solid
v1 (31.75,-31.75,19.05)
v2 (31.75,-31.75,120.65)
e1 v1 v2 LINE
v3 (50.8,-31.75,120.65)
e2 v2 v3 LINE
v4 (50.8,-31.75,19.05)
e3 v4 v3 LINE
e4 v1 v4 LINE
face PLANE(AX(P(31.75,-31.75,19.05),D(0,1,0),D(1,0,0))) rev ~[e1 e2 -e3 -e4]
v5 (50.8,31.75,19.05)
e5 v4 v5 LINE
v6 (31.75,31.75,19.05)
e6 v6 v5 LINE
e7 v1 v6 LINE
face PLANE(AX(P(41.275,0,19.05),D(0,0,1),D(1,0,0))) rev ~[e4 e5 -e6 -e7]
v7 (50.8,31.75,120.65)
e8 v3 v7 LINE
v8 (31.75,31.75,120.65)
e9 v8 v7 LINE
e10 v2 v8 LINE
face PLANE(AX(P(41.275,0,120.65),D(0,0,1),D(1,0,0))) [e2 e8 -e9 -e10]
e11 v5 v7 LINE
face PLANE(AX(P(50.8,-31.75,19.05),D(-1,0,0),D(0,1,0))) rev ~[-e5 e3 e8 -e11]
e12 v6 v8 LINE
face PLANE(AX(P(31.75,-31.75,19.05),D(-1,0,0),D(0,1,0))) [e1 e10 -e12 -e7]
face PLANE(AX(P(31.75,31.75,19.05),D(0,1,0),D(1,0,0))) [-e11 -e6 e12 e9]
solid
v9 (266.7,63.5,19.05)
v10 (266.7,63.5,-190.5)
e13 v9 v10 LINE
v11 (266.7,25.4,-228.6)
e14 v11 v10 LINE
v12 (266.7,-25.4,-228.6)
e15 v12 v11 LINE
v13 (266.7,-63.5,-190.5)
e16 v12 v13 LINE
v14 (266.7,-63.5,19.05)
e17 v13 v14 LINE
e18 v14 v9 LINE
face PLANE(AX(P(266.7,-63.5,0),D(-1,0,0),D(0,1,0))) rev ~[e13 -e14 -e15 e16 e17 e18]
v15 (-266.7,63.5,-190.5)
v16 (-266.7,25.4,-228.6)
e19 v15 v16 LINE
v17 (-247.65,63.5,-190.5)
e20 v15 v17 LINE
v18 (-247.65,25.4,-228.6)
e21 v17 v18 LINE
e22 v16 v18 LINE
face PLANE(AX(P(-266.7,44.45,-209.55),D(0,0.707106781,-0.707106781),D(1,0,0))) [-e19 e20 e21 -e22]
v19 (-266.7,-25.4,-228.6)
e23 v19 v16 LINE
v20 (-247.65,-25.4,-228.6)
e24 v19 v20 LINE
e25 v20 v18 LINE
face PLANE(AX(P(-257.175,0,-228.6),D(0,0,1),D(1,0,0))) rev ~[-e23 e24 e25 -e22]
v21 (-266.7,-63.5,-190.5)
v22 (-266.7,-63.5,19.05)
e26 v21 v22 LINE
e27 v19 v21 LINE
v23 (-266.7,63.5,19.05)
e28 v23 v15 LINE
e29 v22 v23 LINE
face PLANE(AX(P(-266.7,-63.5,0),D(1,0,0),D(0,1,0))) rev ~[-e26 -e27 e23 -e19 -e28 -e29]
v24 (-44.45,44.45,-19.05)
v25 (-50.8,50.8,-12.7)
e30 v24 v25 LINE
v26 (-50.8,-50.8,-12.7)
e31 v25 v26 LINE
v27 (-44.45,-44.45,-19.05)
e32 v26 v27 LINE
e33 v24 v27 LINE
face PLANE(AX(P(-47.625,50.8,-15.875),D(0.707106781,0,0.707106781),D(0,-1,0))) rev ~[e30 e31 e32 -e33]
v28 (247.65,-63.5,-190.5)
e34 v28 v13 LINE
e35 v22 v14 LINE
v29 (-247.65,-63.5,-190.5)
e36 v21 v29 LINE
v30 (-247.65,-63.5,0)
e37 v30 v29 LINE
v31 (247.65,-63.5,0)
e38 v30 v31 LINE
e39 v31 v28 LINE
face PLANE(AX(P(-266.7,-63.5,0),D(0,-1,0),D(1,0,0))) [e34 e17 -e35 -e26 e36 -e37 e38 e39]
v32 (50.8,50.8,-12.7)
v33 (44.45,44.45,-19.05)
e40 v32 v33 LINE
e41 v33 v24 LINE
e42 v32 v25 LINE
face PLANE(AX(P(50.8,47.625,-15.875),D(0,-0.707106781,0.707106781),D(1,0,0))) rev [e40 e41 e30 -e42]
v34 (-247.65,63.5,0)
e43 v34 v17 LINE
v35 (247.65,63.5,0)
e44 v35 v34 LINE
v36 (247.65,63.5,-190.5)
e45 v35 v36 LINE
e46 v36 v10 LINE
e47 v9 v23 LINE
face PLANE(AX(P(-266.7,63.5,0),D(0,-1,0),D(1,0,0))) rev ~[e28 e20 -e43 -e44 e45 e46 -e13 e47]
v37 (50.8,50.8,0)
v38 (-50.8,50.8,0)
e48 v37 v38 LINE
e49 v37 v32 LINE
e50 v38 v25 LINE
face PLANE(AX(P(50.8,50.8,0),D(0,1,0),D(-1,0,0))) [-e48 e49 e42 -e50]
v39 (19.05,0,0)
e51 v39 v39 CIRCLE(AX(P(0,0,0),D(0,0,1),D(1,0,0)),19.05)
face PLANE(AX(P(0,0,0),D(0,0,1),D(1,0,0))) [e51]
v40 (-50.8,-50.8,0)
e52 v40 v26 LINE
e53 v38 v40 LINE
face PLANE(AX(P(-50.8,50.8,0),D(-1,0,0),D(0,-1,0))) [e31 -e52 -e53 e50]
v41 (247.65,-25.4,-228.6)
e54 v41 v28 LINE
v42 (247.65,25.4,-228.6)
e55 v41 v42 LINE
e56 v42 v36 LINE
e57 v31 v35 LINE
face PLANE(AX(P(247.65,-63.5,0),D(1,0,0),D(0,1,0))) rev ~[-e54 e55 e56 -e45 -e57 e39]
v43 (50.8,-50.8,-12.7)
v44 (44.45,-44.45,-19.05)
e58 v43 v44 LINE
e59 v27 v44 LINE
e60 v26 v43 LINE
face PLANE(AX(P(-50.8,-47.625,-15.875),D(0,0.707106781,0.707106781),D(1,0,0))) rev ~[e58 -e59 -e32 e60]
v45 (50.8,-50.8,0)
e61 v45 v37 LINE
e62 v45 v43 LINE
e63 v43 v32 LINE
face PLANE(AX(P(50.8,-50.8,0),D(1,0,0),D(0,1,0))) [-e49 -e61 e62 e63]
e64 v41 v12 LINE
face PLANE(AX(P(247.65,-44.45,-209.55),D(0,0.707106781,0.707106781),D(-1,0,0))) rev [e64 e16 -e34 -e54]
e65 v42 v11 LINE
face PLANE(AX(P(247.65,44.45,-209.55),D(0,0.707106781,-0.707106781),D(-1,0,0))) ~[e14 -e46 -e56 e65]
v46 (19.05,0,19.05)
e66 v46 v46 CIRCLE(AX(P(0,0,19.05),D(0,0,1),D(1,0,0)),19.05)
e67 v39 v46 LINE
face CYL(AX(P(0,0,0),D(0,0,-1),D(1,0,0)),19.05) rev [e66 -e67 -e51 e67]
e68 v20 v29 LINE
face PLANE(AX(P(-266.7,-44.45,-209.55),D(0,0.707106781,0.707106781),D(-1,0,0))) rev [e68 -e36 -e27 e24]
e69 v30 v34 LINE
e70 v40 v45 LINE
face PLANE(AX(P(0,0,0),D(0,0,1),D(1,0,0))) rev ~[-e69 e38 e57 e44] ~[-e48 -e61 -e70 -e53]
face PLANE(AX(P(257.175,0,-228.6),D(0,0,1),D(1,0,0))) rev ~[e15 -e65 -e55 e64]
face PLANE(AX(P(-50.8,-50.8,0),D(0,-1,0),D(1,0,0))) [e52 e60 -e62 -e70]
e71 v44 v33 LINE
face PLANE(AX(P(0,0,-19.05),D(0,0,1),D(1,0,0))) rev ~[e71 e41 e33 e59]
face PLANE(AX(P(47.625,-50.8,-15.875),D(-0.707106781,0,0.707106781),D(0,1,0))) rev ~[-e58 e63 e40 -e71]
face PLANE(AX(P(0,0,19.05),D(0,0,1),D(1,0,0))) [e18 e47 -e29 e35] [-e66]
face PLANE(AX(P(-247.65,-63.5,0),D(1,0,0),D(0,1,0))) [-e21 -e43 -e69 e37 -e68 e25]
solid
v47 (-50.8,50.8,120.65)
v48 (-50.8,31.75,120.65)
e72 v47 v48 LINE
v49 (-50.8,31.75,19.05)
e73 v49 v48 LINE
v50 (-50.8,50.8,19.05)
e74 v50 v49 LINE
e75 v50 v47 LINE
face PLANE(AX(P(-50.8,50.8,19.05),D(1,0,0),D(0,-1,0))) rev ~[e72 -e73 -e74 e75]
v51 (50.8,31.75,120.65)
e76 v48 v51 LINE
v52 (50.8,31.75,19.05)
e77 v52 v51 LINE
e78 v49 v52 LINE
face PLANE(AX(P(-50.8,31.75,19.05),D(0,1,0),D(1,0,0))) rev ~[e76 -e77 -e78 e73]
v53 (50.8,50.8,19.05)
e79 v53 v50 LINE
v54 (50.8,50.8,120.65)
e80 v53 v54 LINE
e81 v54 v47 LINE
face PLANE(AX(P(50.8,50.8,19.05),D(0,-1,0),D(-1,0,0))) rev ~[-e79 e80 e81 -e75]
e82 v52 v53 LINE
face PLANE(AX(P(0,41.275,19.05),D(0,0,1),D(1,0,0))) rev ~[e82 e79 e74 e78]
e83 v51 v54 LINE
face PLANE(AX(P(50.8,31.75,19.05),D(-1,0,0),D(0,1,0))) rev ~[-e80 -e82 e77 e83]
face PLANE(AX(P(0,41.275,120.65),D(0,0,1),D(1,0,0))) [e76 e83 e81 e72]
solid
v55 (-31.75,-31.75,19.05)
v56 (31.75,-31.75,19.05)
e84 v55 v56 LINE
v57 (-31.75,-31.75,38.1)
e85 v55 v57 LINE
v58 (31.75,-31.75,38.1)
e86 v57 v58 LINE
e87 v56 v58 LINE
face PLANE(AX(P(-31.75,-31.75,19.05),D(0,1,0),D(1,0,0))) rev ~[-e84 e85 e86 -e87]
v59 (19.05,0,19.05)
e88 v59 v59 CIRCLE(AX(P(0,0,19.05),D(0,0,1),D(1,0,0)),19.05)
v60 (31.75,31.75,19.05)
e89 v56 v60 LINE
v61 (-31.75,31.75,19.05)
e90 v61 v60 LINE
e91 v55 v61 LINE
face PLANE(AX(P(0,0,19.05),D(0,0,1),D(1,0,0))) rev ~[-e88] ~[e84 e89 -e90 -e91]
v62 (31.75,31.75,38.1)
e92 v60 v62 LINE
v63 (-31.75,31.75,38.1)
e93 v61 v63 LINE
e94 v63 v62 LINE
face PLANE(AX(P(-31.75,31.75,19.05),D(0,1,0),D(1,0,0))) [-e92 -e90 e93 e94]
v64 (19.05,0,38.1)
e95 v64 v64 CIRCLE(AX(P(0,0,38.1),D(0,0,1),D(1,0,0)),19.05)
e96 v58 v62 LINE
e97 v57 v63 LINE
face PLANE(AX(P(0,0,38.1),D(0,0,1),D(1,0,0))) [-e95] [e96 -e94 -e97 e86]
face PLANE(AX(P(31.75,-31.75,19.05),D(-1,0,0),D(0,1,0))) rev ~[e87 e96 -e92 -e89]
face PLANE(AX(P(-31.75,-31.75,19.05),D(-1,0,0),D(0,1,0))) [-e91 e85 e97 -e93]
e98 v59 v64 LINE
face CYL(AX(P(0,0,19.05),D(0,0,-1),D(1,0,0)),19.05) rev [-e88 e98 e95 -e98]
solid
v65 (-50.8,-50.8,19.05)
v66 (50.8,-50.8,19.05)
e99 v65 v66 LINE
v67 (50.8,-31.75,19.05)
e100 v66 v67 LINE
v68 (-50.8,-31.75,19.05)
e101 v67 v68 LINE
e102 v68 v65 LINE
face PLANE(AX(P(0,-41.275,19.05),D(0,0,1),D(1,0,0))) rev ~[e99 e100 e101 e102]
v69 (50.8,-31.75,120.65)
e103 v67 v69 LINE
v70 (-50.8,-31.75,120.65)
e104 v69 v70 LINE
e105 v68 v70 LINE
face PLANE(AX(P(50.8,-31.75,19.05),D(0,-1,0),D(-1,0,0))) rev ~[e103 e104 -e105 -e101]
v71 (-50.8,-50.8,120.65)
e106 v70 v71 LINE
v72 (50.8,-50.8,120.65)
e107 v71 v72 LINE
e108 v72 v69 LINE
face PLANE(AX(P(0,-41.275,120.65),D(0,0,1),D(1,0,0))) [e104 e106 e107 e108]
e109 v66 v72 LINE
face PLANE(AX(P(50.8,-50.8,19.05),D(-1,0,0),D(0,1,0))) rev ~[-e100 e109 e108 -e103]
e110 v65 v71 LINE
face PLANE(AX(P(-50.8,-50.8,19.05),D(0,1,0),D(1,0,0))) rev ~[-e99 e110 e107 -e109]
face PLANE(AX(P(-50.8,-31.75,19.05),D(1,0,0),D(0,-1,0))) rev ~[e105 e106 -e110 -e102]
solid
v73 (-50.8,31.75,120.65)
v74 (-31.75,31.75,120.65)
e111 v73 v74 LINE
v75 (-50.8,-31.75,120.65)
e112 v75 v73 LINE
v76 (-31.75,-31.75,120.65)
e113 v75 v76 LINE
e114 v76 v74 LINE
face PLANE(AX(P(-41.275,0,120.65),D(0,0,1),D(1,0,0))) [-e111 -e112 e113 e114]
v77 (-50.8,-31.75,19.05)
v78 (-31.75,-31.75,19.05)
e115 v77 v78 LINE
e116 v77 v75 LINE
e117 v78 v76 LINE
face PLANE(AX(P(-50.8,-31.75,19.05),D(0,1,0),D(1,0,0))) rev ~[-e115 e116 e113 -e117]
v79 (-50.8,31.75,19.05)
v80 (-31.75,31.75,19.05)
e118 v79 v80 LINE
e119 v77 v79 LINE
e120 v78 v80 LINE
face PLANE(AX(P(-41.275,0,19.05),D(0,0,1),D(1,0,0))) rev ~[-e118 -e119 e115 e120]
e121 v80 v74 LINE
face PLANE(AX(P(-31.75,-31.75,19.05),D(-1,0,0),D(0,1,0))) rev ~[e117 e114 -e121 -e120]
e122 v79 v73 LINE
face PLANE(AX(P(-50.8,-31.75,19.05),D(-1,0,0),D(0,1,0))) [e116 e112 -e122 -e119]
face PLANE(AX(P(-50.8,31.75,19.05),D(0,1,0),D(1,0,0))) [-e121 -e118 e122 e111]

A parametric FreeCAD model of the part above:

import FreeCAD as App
import Part
import Sketcher
Q = App.Units.Quantity


def edges_at(feature, points):
    """Names of the edges that pass closest to the given points."""
    edges = feature.Shape.Edges
    near = lambda p: min(range(len(edges)), key=lambda i: edges[i].distToShape(Part.Vertex(*p))[0])
    return sorted({f"Edge{near(p) + 1}" for p in points})

doc = App.newDocument("Part")
params = doc.addObject("Spreadsheet::Sheet", "Params")
for row, (alias, value) in enumerate([
    ("sketch1_width", "21 in"),
    ("sketch1_height", "5 in"),
    ("pad1_length", "0.75 in"),
    ("sketch2_height", "5 in"),
    ("sketch2_width", "0.75 in"),
    ("pad2_length", "9 in"),
    ("chamfer_size", "1.5 in"),
    ("sketch3_diameter", "1.5 in"),
    ("pocket1_length", "0.75 in"),
    ("sketch4_width", "4 in"),
    ("pad3_length", "0.75 in"),
    ("chamfer2_size", "0.25 in"),
    ("sketch5_diameter", "1.5 in"),
    ("sketch5_width", "2.5 in"),
    ("pad4_length", "0.75 in"),
    ("sketch6_width", "4 in"),
    ("sketch6_height", "0.75 in"),
    ("pad5_length", "4 in"),
    ("sketch7_height", "2.5 in"),
    ("sketch7_width", "0.75 in"),
    ("pad6_length", "4 in"),
], start=1):
    params.set(f"A{row}", alias)
    params.set(f"B{row}", "=" + value)
    params.setAlias(f"B{row}", alias)

body = doc.addObject("PartDesign::Body", "Body")

sketch1 = body.newObject("Sketcher::SketchObject", "Sketch")
sketch1.AttachmentSupport = (doc.getObject("XY_Plane"), [""])
sketch1.MapMode = "FlatFace"
sketch1.addGeometry([
    Part.LineSegment(App.Vector(-266.7, 63.5, 0), App.Vector(-266.7, -63.5, 0)),
    Part.LineSegment(App.Vector(-266.7, -63.5, 0), App.Vector(266.7, -63.5, 0)),
    Part.LineSegment(App.Vector(266.7, -63.5, 0), App.Vector(266.7, 63.5, 0)),
    Part.LineSegment(App.Vector(266.7, 63.5, 0), App.Vector(-266.7, 63.5, 0)),
], False)
sketch1.addConstraint([
    Sketcher.Constraint("Coincident", 0, 2, 1, 1),
    Sketcher.Constraint("Coincident", 1, 2, 2, 1),
    Sketcher.Constraint("Coincident", 2, 2, 3, 1),
    Sketcher.Constraint("Coincident", 3, 2, 0, 1),
    Sketcher.Constraint("Vertical", 0),
    Sketcher.Constraint("Horizontal", 1),
    Sketcher.Constraint("Vertical", 2),
    Sketcher.Constraint("Horizontal", 3),
    Sketcher.Constraint("Symmetric", 0, 2, 2, 2, -1, 1),
    Sketcher.Constraint("DistanceX", 1, 1, 1, 2, Q("21 in")),
    Sketcher.Constraint("DistanceY", 0, 2, 0, 1, Q("5 in")),
])
sketch1.setExpression("Constraints[9]", "Params.sketch1_width")
sketch1.setExpression("Constraints[10]", "Params.sketch1_height")
pad1 = body.newObject("PartDesign::Pad", "Pad")
pad1.Profile = sketch1
pad1.setExpression("Length", "Params.pad1_length")

sketch2 = body.newObject("Sketcher::SketchObject", "Sketch001")
sketch2.AttachmentSupport = (doc.getObject("XY_Plane"), [""])
sketch2.MapMode = "FlatFace"
sketch2.addGeometry([
    Part.LineSegment(App.Vector(-266.7, 63.5, 0), App.Vector(-266.7, -63.5, 0)),
    Part.LineSegment(App.Vector(-266.7, -63.5, 0), App.Vector(-247.65, -63.5, 0)),
    Part.LineSegment(App.Vector(-247.65, -63.5, 0), App.Vector(-247.65, 63.5, 0)),
    Part.LineSegment(App.Vector(-247.65, 63.5, 0), App.Vector(-266.7, 63.5, 0)),
    Part.LineSegment(App.Vector(247.65, 63.5, 0), App.Vector(247.65, -63.5, 0)),
    Part.LineSegment(App.Vector(247.65, -63.5, 0), App.Vector(266.7, -63.5, 0)),
    Part.LineSegment(App.Vector(266.7, -63.5, 0), App.Vector(266.7, 63.5, 0)),
    Part.LineSegment(App.Vector(266.7, 63.5, 0), App.Vector(247.65, 63.5, 0)),
], False)
sketch2.addConstraint([
    Sketcher.Constraint("Coincident", 0, 2, 1, 1),
    Sketcher.Constraint("Coincident", 1, 2, 2, 1),
    Sketcher.Constraint("Coincident", 2, 2, 3, 1),
    Sketcher.Constraint("Coincident", 3, 2, 0, 1),
    Sketcher.Constraint("Coincident", 4, 2, 5, 1),
    Sketcher.Constraint("Coincident", 5, 2, 6, 1),
    Sketcher.Constraint("Coincident", 6, 2, 7, 1),
    Sketcher.Constraint("Coincident", 7, 2, 4, 1),
    Sketcher.Constraint("Vertical", 0),
    Sketcher.Constraint("Horizontal", 1),
    Sketcher.Constraint("Vertical", 2),
    Sketcher.Constraint("Horizontal", 3),
    Sketcher.Constraint("Vertical", 4),
    Sketcher.Constraint("Horizontal", 5),
    Sketcher.Constraint("Vertical", 6),
    Sketcher.Constraint("Horizontal", 7),
    Sketcher.Constraint("Symmetric", 2, 2, 4, 2, -1, 1),
    Sketcher.Constraint("Symmetric", 0, 2, 6, 2, -1, 1),
    Sketcher.Constraint("Horizontal", 1, 2, 4, 2),
    Sketcher.Constraint("DistanceY", 0, 2, 0, 1, Q("5 in")),
    Sketcher.Constraint("DistanceX", 0, 2, 5, 2, Q("21 in")),
    Sketcher.Constraint("DistanceX", 1, 1, 1, 2, Q("0.75 in")),
])
sketch2.setExpression("Constraints[19]", "Params.sketch2_height")
sketch2.setExpression("Constraints[21]", "Params.sketch2_width")
pad2 = body.newObject("PartDesign::Pad", "Pad001")
pad2.Profile = sketch2
pad2.setExpression("Length", "Params.pad2_length")
pad2.Reversed = True
doc.recompute()

chamfer = body.newObject("PartDesign::Chamfer", "Chamfer")
chamfer.Base = (pad2, edges_at(pad2, [
    (-257.175, -63.5, -228.6),
    (-257.175, 63.5, -228.6),
    (257.175, -63.5, -228.6),
    (257.175, 63.5, -228.6),
]))
chamfer.setExpression("Size", "Params.chamfer_size")

sketch3 = body.newObject("Sketcher::SketchObject", "Sketch002")
sketch3.AttachmentSupport = (doc.getObject("XY_Plane"), [""])
sketch3.MapMode = "FlatFace"
sketch3.addGeometry(Part.Circle(App.Vector(0, 0, 0), App.Vector(0, 0, 1), 19.05), False)
sketch3.addConstraint([
    Sketcher.Constraint("Coincident", 0, 3, -1, 1),
    Sketcher.Constraint("Diameter", 0, Q("1.5 in")),
])
sketch3.setExpression("Constraints[1]", "Params.sketch3_diameter")
pocket1 = body.newObject("PartDesign::Pocket", "Pocket")
pocket1.Profile = sketch3
pocket1.setExpression("Length", "Params.pocket1_length")
pocket1.Reversed = True

sketch4 = body.newObject("Sketcher::SketchObject", "Sketch003")
sketch4.AttachmentSupport = (doc.getObject("XY_Plane"), [""])
sketch4.MapMode = "FlatFace"
sketch4.addGeometry([
    Part.LineSegment(App.Vector(-50.8, -50.8, 0), App.Vector(50.8, -50.8, 0)),
    Part.LineSegment(App.Vector(50.8, -50.8, 0), App.Vector(50.8, 50.8, 0)),
    Part.LineSegment(App.Vector(50.8, 50.8, 0), App.Vector(-50.8, 50.8, 0)),
    Part.LineSegment(App.Vector(-50.8, 50.8, 0), App.Vector(-50.8, -50.8, 0)),
], False)
sketch4.addConstraint([
    Sketcher.Constraint("Coincident", 0, 2, 1, 1),
    Sketcher.Constraint("Coincident", 1, 2, 2, 1),
    Sketcher.Constraint("Coincident", 2, 2, 3, 1),
    Sketcher.Constraint("Coincident", 3, 2, 0, 1),
    Sketcher.Constraint("Horizontal", 0),
    Sketcher.Constraint("Vertical", 1),
    Sketcher.Constraint("Horizontal", 2),
    Sketcher.Constraint("Vertical", 3),
    Sketcher.Constraint("Symmetric", 0, 2, 2, 2, -1, 1),
    Sketcher.Constraint("Equal", 2, 1),
    Sketcher.Constraint("DistanceX", 0, 1, 0, 2, Q("4 in")),
])
sketch4.setExpression("Constraints[10]", "Params.sketch4_width")
pad3 = body.newObject("PartDesign::Pad", "Pad002")
pad3.Profile = sketch4
pad3.setExpression("Length", "Params.pad3_length")
pad3.Reversed = True
doc.recompute()

chamfer2 = body.newObject("PartDesign::Chamfer", "Chamfer001")
chamfer2.Base = (pad3, edges_at(pad3, [
    (0, -50.8, -19.05),
    (50.8, 0, -19.05),
    (0, 50.8, -19.05),
    (-50.8, 0, -19.05),
]))
chamfer2.setExpression("Size", "Params.chamfer2_size")
body2 = doc.addObject("PartDesign::Body", "Body001")

sketch5 = body2.newObject("Sketcher::SketchObject", "Sketch004")
sketch5.AttachmentSupport = (doc.getObject("XY_Plane001"), [""])
sketch5.MapMode = "FlatFace"
sketch5.AttachmentOffset = App.Placement(App.Vector(0, 0, 0.75 * 25.4), App.Rotation())
sketch5.addGeometry([
    Part.LineSegment(App.Vector(-31.75, 31.75, 0), App.Vector(-31.75, -31.75, 0)),
    Part.LineSegment(App.Vector(-31.75, -31.75, 0), App.Vector(31.75, -31.75, 0)),
    Part.LineSegment(App.Vector(31.75, -31.75, 0), App.Vector(31.75, 31.75, 0)),
    Part.LineSegment(App.Vector(31.75, 31.75, 0), App.Vector(-31.75, 31.75, 0)),
    Part.Circle(App.Vector(0, 0, 0), App.Vector(0, 0, 1), 19.05),
], False)
sketch5.addConstraint([
    Sketcher.Constraint("Coincident", 0, 2, 1, 1),
    Sketcher.Constraint("Coincident", 1, 2, 2, 1),
    Sketcher.Constraint("Coincident", 2, 2, 3, 1),
    Sketcher.Constraint("Coincident", 3, 2, 0, 1),
    Sketcher.Constraint("Vertical", 0),
    Sketcher.Constraint("Horizontal", 1),
    Sketcher.Constraint("Vertical", 2),
    Sketcher.Constraint("Horizontal", 3),
    Sketcher.Constraint("Coincident", 4, 3, -1, 1),
    Sketcher.Constraint("Symmetric", 0, 2, 2, 2, -1, 1),
    Sketcher.Constraint("Equal", 3, 0),
    Sketcher.Constraint("Diameter", 4, Q("1.5 in")),
    Sketcher.Constraint("DistanceX", 1, 1, 1, 2, Q("2.5 in")),
])
sketch5.setExpression("Constraints[11]", "Params.sketch5_diameter")
sketch5.setExpression("Constraints[12]", "Params.sketch5_width")
pad4 = body2.newObject("PartDesign::Pad", "Pad003")
pad4.Profile = sketch5
pad4.setExpression("Length", "Params.pad4_length")
body3 = doc.addObject("PartDesign::Body", "Body002")
body3.AllowCompound = True

sketch6 = body3.newObject("Sketcher::SketchObject", "Sketch005")
sketch6.AttachmentSupport = (doc.getObject("XY_Plane002"), [""])
sketch6.MapMode = "FlatFace"
sketch6.AttachmentOffset = App.Placement(App.Vector(0, 0, 0.75 * 25.4), App.Rotation())
sketch6.addGeometry([
    Part.LineSegment(App.Vector(50.8, 31.75, 0), App.Vector(50.8, 50.8, 0)),
    Part.LineSegment(App.Vector(50.8, 50.8, 0), App.Vector(-50.8, 50.8, 0)),
    Part.LineSegment(App.Vector(-50.8, 50.8, 0), App.Vector(-50.8, 31.75, 0)),
    Part.LineSegment(App.Vector(-50.8, 31.75, 0), App.Vector(50.8, 31.75, 0)),
    Part.LineSegment(App.Vector(50.8, -31.75, 0), App.Vector(-50.8, -31.75, 0)),
    Part.LineSegment(App.Vector(-50.8, -31.75, 0), App.Vector(-50.8, -50.8, 0)),
    Part.LineSegment(App.Vector(-50.8, -50.8, 0), App.Vector(50.8, -50.8, 0)),
    Part.LineSegment(App.Vector(50.8, -50.8, 0), App.Vector(50.8, -31.75, 0)),
], False)
sketch6.addConstraint([
    Sketcher.Constraint("Coincident", 0, 2, 1, 1),
    Sketcher.Constraint("Coincident", 1, 2, 2, 1),
    Sketcher.Constraint("Coincident", 2, 2, 3, 1),
    Sketcher.Constraint("Coincident", 3, 2, 0, 1),
    Sketcher.Constraint("Coincident", 4, 2, 5, 1),
    Sketcher.Constraint("Coincident", 5, 2, 6, 1),
    Sketcher.Constraint("Coincident", 6, 2, 7, 1),
    Sketcher.Constraint("Coincident", 7, 2, 4, 1),
    Sketcher.Constraint("Vertical", 0),
    Sketcher.Constraint("Horizontal", 1),
    Sketcher.Constraint("Vertical", 2),
    Sketcher.Constraint("Horizontal", 3),
    Sketcher.Constraint("Horizontal", 4),
    Sketcher.Constraint("Vertical", 5),
    Sketcher.Constraint("Horizontal", 6),
    Sketcher.Constraint("Vertical", 7),
    Sketcher.Constraint("Symmetric", 3, 2, 4, 2, -1, 1),
    Sketcher.Constraint("Symmetric", 1, 2, 6, 2, -1, 1),
    Sketcher.Constraint("Vertical", 2, 2, 4, 2),
    Sketcher.Constraint("DistanceX", 1, 2, 1, 1, Q("4 in")),
    Sketcher.Constraint("DistanceY", -1, 1, 0, 2, Q("2 in")),
    Sketcher.Constraint("DistanceY", 0, 1, 0, 2, Q("0.75 in")),
])
sketch6.setExpression("Constraints[19]", "Params.sketch6_width")
sketch6.setExpression("Constraints[21]", "Params.sketch6_height")
pad5 = body3.newObject("PartDesign::Pad", "Pad004")
pad5.Profile = sketch6
pad5.setExpression("Length", "Params.pad5_length")
body4 = doc.addObject("PartDesign::Body", "Body003")
body4.AllowCompound = True

sketch7 = body4.newObject("Sketcher::SketchObject", "Sketch006")
sketch7.AttachmentSupport = (doc.getObject("XY_Plane003"), [""])
sketch7.MapMode = "FlatFace"
sketch7.AttachmentOffset = App.Placement(App.Vector(0, 0, 0.75 * 25.4), App.Rotation())
sketch7.addGeometry([
    Part.LineSegment(App.Vector(-50.8, 31.75, 0), App.Vector(-50.8, -31.75, 0)),
    Part.LineSegment(App.Vector(-50.8, -31.75, 0), App.Vector(-31.75, -31.75, 0)),
    Part.LineSegment(App.Vector(-31.75, -31.75, 0), App.Vector(-31.75, 31.75, 0)),
    Part.LineSegment(App.Vector(-31.75, 31.75, 0), App.Vector(-50.8, 31.75, 0)),
    Part.LineSegment(App.Vector(31.75, 31.75, 0), App.Vector(31.75, -31.75, 0)),
    Part.LineSegment(App.Vector(31.75, -31.75, 0), App.Vector(50.8, -31.75, 0)),
    Part.LineSegment(App.Vector(50.8, -31.75, 0), App.Vector(50.8, 31.75, 0)),
    Part.LineSegment(App.Vector(50.8, 31.75, 0), App.Vector(31.75, 31.75, 0)),
], False)
sketch7.addConstraint([
    Sketcher.Constraint("Coincident", 0, 2, 1, 1),
    Sketcher.Constraint("Coincident", 1, 2, 2, 1),
    Sketcher.Constraint("Coincident", 2, 2, 3, 1),
    Sketcher.Constraint("Coincident", 3, 2, 0, 1),
    Sketcher.Constraint("Coincident", 4, 2, 5, 1),
    Sketcher.Constraint("Coincident", 5, 2, 6, 1),
    Sketcher.Constraint("Coincident", 6, 2, 7, 1),
    Sketcher.Constraint("Coincident", 7, 2, 4, 1),
    Sketcher.Constraint("Vertical", 0),
    Sketcher.Constraint("Horizontal", 1),
    Sketcher.Constraint("Vertical", 2),
    Sketcher.Constraint("Horizontal", 3),
    Sketcher.Constraint("Vertical", 4),
    Sketcher.Constraint("Horizontal", 5),
    Sketcher.Constraint("Vertical", 6),
    Sketcher.Constraint("Horizontal", 7),
    Sketcher.Constraint("Symmetric", 2, 2, 4, 2, -1, 1),
    Sketcher.Constraint("Symmetric", 0, 2, 6, 2, -1, 1),
    Sketcher.Constraint("Horizontal", 1, 2, 4, 2),
    Sketcher.Constraint("DistanceY", 0, 2, 0, 1, Q("2.5 in")),
    Sketcher.Constraint("DistanceX", 0, 2, -1, 1, Q("2 in")),
    Sketcher.Constraint("DistanceX", 1, 1, 1, 2, Q("0.75 in")),
])
sketch7.setExpression("Constraints[19]", "Params.sketch7_height")
sketch7.setExpression("Constraints[21]", "Params.sketch7_width")
pad6 = body4.newObject("PartDesign::Pad", "Pad005")
pad6.Profile = sketch7
pad6.setExpression("Length", "Params.pad6_length")

doc.recompute()
